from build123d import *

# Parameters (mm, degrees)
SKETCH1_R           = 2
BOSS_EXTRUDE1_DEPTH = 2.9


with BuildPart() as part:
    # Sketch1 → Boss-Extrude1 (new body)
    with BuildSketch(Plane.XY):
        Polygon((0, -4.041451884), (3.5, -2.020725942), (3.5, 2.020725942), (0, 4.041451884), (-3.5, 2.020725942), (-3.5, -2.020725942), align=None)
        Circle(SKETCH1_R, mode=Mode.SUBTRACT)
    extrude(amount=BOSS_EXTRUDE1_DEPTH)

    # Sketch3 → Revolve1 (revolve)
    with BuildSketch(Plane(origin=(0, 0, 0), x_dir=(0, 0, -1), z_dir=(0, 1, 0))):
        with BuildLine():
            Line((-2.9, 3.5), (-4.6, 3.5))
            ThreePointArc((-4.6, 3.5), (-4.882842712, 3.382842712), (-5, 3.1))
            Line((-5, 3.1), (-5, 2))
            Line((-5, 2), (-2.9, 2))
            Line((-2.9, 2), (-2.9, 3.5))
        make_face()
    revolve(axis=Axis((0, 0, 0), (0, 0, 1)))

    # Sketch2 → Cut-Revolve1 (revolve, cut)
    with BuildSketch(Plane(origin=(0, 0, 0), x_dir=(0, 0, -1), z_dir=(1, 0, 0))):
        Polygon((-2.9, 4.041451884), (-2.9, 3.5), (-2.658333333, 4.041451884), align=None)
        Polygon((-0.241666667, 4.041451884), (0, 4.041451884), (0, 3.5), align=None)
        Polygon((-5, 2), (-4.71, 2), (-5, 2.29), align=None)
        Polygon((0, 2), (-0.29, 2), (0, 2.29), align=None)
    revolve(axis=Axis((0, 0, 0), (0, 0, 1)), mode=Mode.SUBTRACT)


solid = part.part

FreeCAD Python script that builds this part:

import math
import FreeCAD as App
import Part
import Sketcher
from FreeCAD import Vector
Q = App.Units.Quantity

doc = App.newDocument("Part")
body = doc.addObject("PartDesign::Body", "Body")

# Sketch on XY plane
sketch1 = body.newObject("Sketcher::SketchObject", "Sketch")
sketch1.AttachmentSupport = (doc.getObject("XY_Plane"), [""])
sketch1.MapMode = "FlatFace"
sketch1.addGeometry([
    Part.LineSegment(Vector(0, -4, 0), Vector(3.5, -2, 0)),  # 0
    Part.LineSegment(Vector(3.5, -2, 0), Vector(3.5, 2, 0)),  # 1
    Part.LineSegment(Vector(3.5, 2, 0), Vector(0, 4, 0)),  # 2
    Part.LineSegment(Vector(0, 4, 0), Vector(-3.5, 2, 0)),  # 3
    Part.LineSegment(Vector(-3.5, 2, 0), Vector(-3.5, -2, 0)),  # 4
    Part.LineSegment(Vector(-3.5, -2, 0), Vector(0, -4, 0)),  # 5
    Part.Circle(Vector(0, 0, 0), Vector(0, 0, 1), 2),  # 6
], False)
sketch1.addConstraint([
    Sketcher.Constraint("Coincident", 0, 2, 1, 1),
    Sketcher.Constraint("Coincident", 1, 2, 2, 1),
    Sketcher.Constraint("Coincident", 2, 2, 3, 1),
    Sketcher.Constraint("Coincident", 3, 2, 4, 1),
    Sketcher.Constraint("Coincident", 4, 2, 5, 1),
    Sketcher.Constraint("Coincident", 5, 2, 0, 1),
    Sketcher.Constraint("Vertical", 1),
    Sketcher.Constraint("Vertical", 4),
    Sketcher.Constraint("Coincident", 6, 3, -1, 1),
    Sketcher.Constraint("Symmetric", 0, 2, 3, 2, -1, 1),
    Sketcher.Constraint("Symmetric", 2, 2, 5, 2, -1, 1),
    Sketcher.Constraint("PointOnObject", 2, 2, -2),
    Sketcher.Constraint("Parallel", 2, 5),
    Sketcher.Constraint("Horizontal", 1, 2, 3, 2),
    Sketcher.Constraint("Diameter", 6, Q("4 mm")),
    Sketcher.Constraint("Angle", 0, Q("30 deg")),
    Sketcher.Constraint("DistanceX", 3, 2, 1, 2, Q("7 mm")),
    Sketcher.Constraint("DistanceY", 1, 1, 1, 2, Q("4.041452 mm")),
])
pad1 = body.newObject("PartDesign::Pad", "Pad")
pad1.Profile = sketch1
pad1.Length = 2.9

# Sketch on XZ plane
sketch2 = body.newObject("Sketcher::SketchObject", "Sketch001")
sketch2.AttachmentSupport = (doc.getObject("XZ_Plane"), [""])
sketch2.MapMode = "FlatFace"
sketch2.addGeometry([
    Part.LineSegment(Vector(-3.5, 2.9, 0), Vector(-3.5, 4.6, 0)),  # 0
    Part.ArcOfCircle(Part.Circle(Vector(-3.1, 4.6, 0), Vector(0, 0, 1), 0.4), math.radians(90), math.radians(180)),  # 1
    Part.LineSegment(Vector(-3.1, 5, 0), Vector(-2, 5, 0)),  # 2
    Part.LineSegment(Vector(-2, 5, 0), Vector(-2, 2.9, 0)),  # 3
    Part.LineSegment(Vector(-2, 2.9, 0), Vector(-3.5, 2.9, 0)),  # 4
], False)
sketch2.addConstraint([
    Sketcher.Constraint("Tangent", 0, 2, 1, 2),
    Sketcher.Constraint("Tangent", 1, 1, 2, 1),
    Sketcher.Constraint("Coincident", 2, 2, 3, 1),
    Sketcher.Constraint("Coincident", 3, 2, 4, 1),
    Sketcher.Constraint("Coincident", 4, 2, 0, 1),
    Sketcher.Constraint("Vertical", 0),
    Sketcher.Constraint("Horizontal", 2),
    Sketcher.Constraint("Vertical", 3),
    Sketcher.Constraint("Horizontal", 4),
    Sketcher.Constraint("Radius", 1, Q("0.4 mm")),
    Sketcher.Constraint("DistanceX", 2, 1, 2, 2, Q("1.1 mm")),
    Sketcher.Constraint("DistanceY", 0, 1, 0, 2, Q("1.7 mm")),
    Sketcher.Constraint("DistanceY", -1, 1, 1, 1, Q("5 mm")),
    Sketcher.Constraint("DistanceX", 2, 2, -1, 1, Q("2 mm")),
])
revolution = body.newObject("PartDesign::Revolution", "Revolution")
revolution.Profile = sketch2
revolution.ReferenceAxis = (sketch2, ["V_Axis"])
revolution.Angle = 360

# Sketch on YZ plane
sketch3 = body.newObject("Sketcher::SketchObject", "Sketch002")
sketch3.AttachmentSupport = (doc.getObject("YZ_Plane"), [""])
sketch3.MapMode = "FlatFace"
sketch3.addGeometry([
    Part.LineSegment(Vector(4.04, 2.9, 0), Vector(3.5, 2.9, 0)),  # 0
    Part.LineSegment(Vector(3.5, 2.9, 0), Vector(4.04, 2.66, 0)),  # 1
    Part.LineSegment(Vector(4.04, 2.66, 0), Vector(4.04, 2.9, 0)),  # 2
    Part.LineSegment(Vector(4.04, 0, 0), Vector(4.04, 0.24, 0)),  # 3
    Part.LineSegment(Vector(4.04, 0.24, 0), Vector(3.5, 0, 0)),  # 4
    Part.LineSegment(Vector(3.5, 0, 0), Vector(4.04, 0, 0)),  # 5
    Part.LineSegment(Vector(2, 5, 0), Vector(2, 4.71, 0)),  # 6
    Part.LineSegment(Vector(2, 4.71, 0), Vector(2.29, 5, 0)),  # 7
    Part.LineSegment(Vector(2.29, 5, 0), Vector(2, 5, 0)),  # 8
    Part.LineSegment(Vector(2, 0.29, 0), Vector(2, 0, 0)),  # 9
    Part.LineSegment(Vector(2, 0, 0), Vector(2.29, 0, 0)),  # 10
    Part.LineSegment(Vector(2.29, 0, 0), Vector(2, 0.29, 0)),  # 11
], False)
sketch3.addConstraint([
    Sketcher.Constraint("Coincident", 0, 2, 1, 1),
    Sketcher.Constraint("Coincident", 1, 2, 2, 1),
    Sketcher.Constraint("Coincident", 2, 2, 0, 1),
    Sketcher.Constraint("Coincident", 3, 2, 4, 1),
    Sketcher.Constraint("Coincident", 4, 2, 5, 1),
    Sketcher.Constraint("Coincident", 5, 2, 3, 1),
    Sketcher.Constraint("Coincident", 6, 2, 7, 1),
    Sketcher.Constraint("Coincident", 7, 2, 8, 1),
    Sketcher.Constraint("Coincident", 8, 2, 6, 1),
    Sketcher.Constraint("Coincident", 9, 2, 10, 1),
    Sketcher.Constraint("Coincident", 10, 2, 11, 1),
    Sketcher.Constraint("Coincident", 11, 2, 9, 1),
    Sketcher.Constraint("Horizontal", 0),
    Sketcher.Constraint("Vertical", 2),
    Sketcher.Constraint("Vertical", 3),
    Sketcher.Constraint("Horizontal", 5),
    Sketcher.Constraint("Vertical", 6),
    Sketcher.Constraint("Horizontal", 8),
    Sketcher.Constraint("Vertical", 9),
    Sketcher.Constraint("Horizontal", 10),
    Sketcher.Constraint("PointOnObject", 4, 2, -1),
    Sketcher.Constraint("PointOnObject", 9, 2, -1),
    Sketcher.Constraint("Perpendicular", 7, 11),
    Sketcher.Constraint("Vertical", 2, 2, 3, 2),
    Sketcher.Constraint("Vertical", 0, 2, 4, 2),
    Sketcher.Constraint("Vertical", 8, 2, 9, 2),
    Sketcher.Constraint("Vertical", 7, 2, 10, 2),
    Sketcher.Constraint("Equal", 2, 3),
    Sketcher.Constraint("Equal", 10, 6),
    Sketcher.Constraint("DistanceX", -1, 1, 6, 2, Q("2 mm")),
    Sketcher.Constraint("DistanceY", -1, 1, 7, 2, Q("5 mm")),
    Sketcher.Constraint("DistanceX", 8, 2, 8, 1, Q("0.29 mm")),
    Sketcher.Constraint("DistanceX", -1, 1, 0, 2, Q("3.5 mm")),
    Sketcher.Constraint("DistanceY", -1, 1, 0, 2, Q("2.9 mm")),
    Sketcher.Constraint("DistanceX", 0, 2, 0, 1, Q("0.541452 mm")),
    Sketcher.Constraint("DistanceY", 2, 1, 2, 2, Q("0.241667 mm")),
])
groove = body.newObject("PartDesign::Groove", "Groove")
groove.Profile = sketch3
groove.ReferenceAxis = (sketch3, ["V_Axis"])
groove.Angle = 360

doc.recompute()
